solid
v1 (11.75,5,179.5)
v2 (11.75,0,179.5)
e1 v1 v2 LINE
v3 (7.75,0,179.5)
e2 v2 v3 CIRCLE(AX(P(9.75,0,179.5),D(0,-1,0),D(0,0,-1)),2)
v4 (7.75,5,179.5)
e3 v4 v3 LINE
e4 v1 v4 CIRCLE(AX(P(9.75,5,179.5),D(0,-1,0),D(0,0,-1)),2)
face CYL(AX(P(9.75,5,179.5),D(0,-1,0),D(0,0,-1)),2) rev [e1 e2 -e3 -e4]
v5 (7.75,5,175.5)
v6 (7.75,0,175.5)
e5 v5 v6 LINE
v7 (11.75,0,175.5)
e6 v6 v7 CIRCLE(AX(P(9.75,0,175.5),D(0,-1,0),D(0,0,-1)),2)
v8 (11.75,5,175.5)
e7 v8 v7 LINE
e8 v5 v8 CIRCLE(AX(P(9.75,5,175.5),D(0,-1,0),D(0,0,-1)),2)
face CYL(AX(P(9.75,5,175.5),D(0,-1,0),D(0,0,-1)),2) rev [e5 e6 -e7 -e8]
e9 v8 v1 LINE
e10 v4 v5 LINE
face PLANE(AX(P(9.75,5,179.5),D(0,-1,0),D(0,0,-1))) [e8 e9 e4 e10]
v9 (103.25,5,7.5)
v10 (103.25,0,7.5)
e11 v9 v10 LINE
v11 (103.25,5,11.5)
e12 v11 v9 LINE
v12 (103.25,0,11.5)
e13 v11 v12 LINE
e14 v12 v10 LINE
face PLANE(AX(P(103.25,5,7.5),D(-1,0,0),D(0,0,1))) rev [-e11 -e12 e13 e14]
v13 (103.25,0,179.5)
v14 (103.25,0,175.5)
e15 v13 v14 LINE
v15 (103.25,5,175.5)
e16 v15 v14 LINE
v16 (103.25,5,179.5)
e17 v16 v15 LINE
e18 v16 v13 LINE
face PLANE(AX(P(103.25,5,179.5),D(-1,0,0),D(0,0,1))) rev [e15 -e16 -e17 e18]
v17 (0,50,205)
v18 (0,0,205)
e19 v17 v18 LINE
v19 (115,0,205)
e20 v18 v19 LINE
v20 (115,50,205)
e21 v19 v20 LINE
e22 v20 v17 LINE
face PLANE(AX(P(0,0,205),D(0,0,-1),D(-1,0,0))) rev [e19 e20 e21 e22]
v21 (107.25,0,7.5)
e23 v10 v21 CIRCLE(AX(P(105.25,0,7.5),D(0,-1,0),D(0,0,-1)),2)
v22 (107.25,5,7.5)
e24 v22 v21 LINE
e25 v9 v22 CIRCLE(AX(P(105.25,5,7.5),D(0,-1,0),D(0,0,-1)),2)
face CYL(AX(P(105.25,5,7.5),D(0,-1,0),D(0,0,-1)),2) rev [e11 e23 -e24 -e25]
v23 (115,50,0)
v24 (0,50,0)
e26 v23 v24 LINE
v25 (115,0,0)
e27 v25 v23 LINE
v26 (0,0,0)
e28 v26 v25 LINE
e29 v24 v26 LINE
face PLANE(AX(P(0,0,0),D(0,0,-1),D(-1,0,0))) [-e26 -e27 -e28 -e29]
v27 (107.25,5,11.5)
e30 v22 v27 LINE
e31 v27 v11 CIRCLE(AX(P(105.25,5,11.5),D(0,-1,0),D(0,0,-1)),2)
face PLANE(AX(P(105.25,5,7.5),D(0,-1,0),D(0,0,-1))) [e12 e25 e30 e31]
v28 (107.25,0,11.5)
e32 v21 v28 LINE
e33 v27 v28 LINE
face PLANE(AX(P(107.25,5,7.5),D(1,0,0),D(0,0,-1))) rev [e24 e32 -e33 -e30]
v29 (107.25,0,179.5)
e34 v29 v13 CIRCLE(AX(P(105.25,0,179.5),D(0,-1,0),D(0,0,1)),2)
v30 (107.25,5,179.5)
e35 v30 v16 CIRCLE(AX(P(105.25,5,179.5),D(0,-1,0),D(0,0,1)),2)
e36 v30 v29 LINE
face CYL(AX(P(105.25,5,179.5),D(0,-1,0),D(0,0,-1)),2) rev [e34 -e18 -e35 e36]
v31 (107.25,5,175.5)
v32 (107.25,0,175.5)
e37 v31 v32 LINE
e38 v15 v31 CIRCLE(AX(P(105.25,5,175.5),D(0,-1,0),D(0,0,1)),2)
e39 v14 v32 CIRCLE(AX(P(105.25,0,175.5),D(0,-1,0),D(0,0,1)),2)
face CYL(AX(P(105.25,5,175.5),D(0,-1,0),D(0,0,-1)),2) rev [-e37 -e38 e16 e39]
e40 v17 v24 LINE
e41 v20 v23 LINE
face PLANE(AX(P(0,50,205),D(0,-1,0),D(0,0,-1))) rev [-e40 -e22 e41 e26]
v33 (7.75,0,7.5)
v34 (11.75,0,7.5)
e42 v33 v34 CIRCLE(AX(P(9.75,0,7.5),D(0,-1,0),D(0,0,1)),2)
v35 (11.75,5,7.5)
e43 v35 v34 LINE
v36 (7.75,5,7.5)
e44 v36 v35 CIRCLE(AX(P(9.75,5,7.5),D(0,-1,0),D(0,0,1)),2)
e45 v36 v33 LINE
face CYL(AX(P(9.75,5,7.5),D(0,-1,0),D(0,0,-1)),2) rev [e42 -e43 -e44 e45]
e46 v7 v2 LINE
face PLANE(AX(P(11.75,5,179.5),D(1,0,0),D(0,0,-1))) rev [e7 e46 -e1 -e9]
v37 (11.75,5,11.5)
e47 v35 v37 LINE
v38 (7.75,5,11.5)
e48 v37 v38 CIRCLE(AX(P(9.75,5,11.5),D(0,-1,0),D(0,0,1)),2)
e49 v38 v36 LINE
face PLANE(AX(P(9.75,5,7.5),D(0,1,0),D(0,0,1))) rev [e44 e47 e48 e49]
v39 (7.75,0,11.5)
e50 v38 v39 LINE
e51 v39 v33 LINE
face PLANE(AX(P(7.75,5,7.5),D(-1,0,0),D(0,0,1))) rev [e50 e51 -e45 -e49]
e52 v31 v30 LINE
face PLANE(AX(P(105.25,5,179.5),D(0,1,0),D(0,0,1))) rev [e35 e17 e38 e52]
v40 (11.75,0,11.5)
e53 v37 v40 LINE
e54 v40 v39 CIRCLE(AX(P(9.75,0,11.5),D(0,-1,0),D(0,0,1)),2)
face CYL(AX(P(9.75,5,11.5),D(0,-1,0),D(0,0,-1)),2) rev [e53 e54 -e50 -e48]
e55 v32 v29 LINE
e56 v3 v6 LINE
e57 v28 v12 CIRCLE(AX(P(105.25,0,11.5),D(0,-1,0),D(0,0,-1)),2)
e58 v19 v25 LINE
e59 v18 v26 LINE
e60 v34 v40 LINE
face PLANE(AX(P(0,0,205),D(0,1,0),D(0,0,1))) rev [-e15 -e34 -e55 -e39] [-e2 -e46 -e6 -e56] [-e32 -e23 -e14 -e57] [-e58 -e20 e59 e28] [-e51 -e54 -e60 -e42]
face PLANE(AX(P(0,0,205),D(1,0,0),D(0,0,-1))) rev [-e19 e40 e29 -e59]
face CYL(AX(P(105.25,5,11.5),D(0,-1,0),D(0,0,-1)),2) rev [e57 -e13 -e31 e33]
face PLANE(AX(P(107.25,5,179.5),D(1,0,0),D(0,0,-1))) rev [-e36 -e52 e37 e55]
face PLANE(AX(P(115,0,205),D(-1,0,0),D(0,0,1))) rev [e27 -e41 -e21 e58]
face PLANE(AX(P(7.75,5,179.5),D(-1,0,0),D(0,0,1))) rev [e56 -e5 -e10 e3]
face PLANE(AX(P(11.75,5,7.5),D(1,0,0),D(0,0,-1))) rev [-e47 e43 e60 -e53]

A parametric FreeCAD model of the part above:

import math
import FreeCAD as App
import Part
import Sketcher
Q = App.Units.Quantity

doc = App.newDocument("Part")
params = doc.addObject("Spreadsheet::Sheet", "Params")
for row, (alias, value) in enumerate([
    ("sketch1_width", "115 mm"),
    ("sketch1_height", "50 mm"),
    ("pad1_length", "205 mm"),
    ("sketch2_radius", "2 mm"),
    ("sketch2_height", "4 mm"),
    ("pocket1_length", "5 mm"),
], start=1):
    params.set(f"A{row}", alias)
    params.set(f"B{row}", "=" + value)
    params.setAlias(f"B{row}", alias)

body = doc.addObject("PartDesign::Body", "Body")

# Sketch on XY plane
sketch1 = body.newObject("Sketcher::SketchObject", "Sketch")
sketch1.AttachmentSupport = (doc.getObject("XY_Plane"), [""])
sketch1.MapMode = "FlatFace"
sketch1.addGeometry([
    Part.LineSegment(App.Vector(0, 50, 0), App.Vector(0, 0, 0)),
    Part.LineSegment(App.Vector(0, 0, 0), App.Vector(115, 0, 0)),
    Part.LineSegment(App.Vector(115, 0, 0), App.Vector(115, 50, 0)),
    Part.LineSegment(App.Vector(115, 50, 0), App.Vector(0, 50, 0)),
], False)
sketch1.addConstraint([
    Sketcher.Constraint("Coincident", 0, 2, 1, 1),
    Sketcher.Constraint("Coincident", 1, 2, 2, 1),
    Sketcher.Constraint("Coincident", 2, 2, 3, 1),
    Sketcher.Constraint("Coincident", 3, 2, 0, 1),
    Sketcher.Constraint("Vertical", 0),
    Sketcher.Constraint("Horizontal", 1),
    Sketcher.Constraint("Vertical", 2),
    Sketcher.Constraint("Horizontal", 3),
    Sketcher.Constraint("Coincident", 0, 2, -1, 1),
    Sketcher.Constraint("DistanceX", 1, 1, 1, 2, Q("115 mm")),
    Sketcher.Constraint("DistanceY", 0, 2, 0, 1, Q("50 mm")),
])
sketch1.setExpression("Constraints[9]", "Params.sketch1_width")
sketch1.setExpression("Constraints[10]", "Params.sketch1_height")
pad1 = body.newObject("PartDesign::Pad", "Pad")
pad1.Profile = sketch1
pad1.setExpression("Length", "Params.pad1_length")

# Sketch on XZ plane
sketch2 = body.newObject("Sketcher::SketchObject", "Sketch001")
sketch2.AttachmentSupport = (doc.getObject("XZ_Plane"), [""])
sketch2.MapMode = "FlatFace"
sketch2.addGeometry([
    Part.LineSegment(App.Vector(11.8, 175.5, 0), App.Vector(11.8, 179.5, 0)),  # 0
    Part.ArcOfCircle(Part.Circle(App.Vector(9.8, 179.5, 0), App.Vector(0, 0, 1), 2), math.radians(0), math.radians(180)),  # 1
    Part.LineSegment(App.Vector(7.8, 179.5, 0), App.Vector(7.8, 175.5, 0)),  # 2
    Part.ArcOfCircle(Part.Circle(App.Vector(9.8, 175.5, 0), App.Vector(0, 0, 1), 2), math.radians(180), math.radians(360)),  # 3
    Part.LineSegment(App.Vector(103.2, 179.5, 0), App.Vector(103.2, 175.5, 0)),  # 4
    Part.ArcOfCircle(Part.Circle(App.Vector(105.2, 175.5, 0), App.Vector(0, 0, 1), 2), math.radians(180), math.radians(360)),  # 5
    Part.LineSegment(App.Vector(107.2, 175.5, 0), App.Vector(107.2, 179.5, 0)),  # 6
    Part.ArcOfCircle(Part.Circle(App.Vector(105.2, 179.5, 0), App.Vector(0, 0, 1), 2), math.radians(0), math.radians(180)),  # 7
    Part.LineSegment(App.Vector(11.8, 7.5, 0), App.Vector(11.8, 11.5, 0)),  # 8
    Part.ArcOfCircle(Part.Circle(App.Vector(9.8, 11.5, 0), App.Vector(0, 0, 1), 2), math.radians(0), math.radians(180)),  # 9
    Part.LineSegment(App.Vector(7.8, 11.5, 0), App.Vector(7.8, 7.5, 0)),  # 10
    Part.ArcOfCircle(Part.Circle(App.Vector(9.8, 7.5, 0), App.Vector(0, 0, 1), 2), math.radians(180), math.radians(360)),  # 11
    Part.LineSegment(App.Vector(103.2, 11.5, 0), App.Vector(103.2, 7.5, 0)),  # 12
    Part.ArcOfCircle(Part.Circle(App.Vector(105.2, 7.5, 0), App.Vector(0, 0, 1), 2), math.radians(180), math.radians(360)),  # 13
    Part.LineSegment(App.Vector(107.2, 7.5, 0), App.Vector(107.2, 11.5, 0)),  # 14
    Part.ArcOfCircle(Part.Circle(App.Vector(105.2, 11.5, 0), App.Vector(0, 0, 1), 2), math.radians(0), math.radians(180)),  # 15
], False)
sketch2.addConstraint([
    Sketcher.Constraint("Tangent", 0, 2, 1, 1),
    Sketcher.Constraint("Tangent", 1, 2, 2, 1),
    Sketcher.Constraint("Tangent", 2, 2, 3, 1),
    Sketcher.Constraint("Tangent", 3, 2, 0, 1),
    Sketcher.Constraint("Tangent", 4, 2, 5, 1),
    Sketcher.Constraint("Tangent", 5, 2, 6, 1),
    Sketcher.Constraint("Tangent", 6, 2, 7, 1),
    Sketcher.Constraint("Tangent", 7, 2, 4, 1),
    Sketcher.Constraint("Tangent", 8, 2, 9, 1),
    Sketcher.Constraint("Tangent", 9, 2, 10, 1),
    Sketcher.Constraint("Tangent", 10, 2, 11, 1),
    Sketcher.Constraint("Tangent", 11, 2, 8, 1),
    Sketcher.Constraint("Tangent", 12, 2, 13, 1),
    Sketcher.Constraint("Tangent", 13, 2, 14, 1),
    Sketcher.Constraint("Tangent", 14, 2, 15, 1),
    Sketcher.Constraint("Tangent", 15, 2, 12, 1),
    Sketcher.Constraint("Vertical", 0),
    Sketcher.Constraint("Vertical", 2),
    Sketcher.Constraint("Vertical", 4),
    Sketcher.Constraint("Vertical", 6),
    Sketcher.Constraint("Vertical", 8),
    Sketcher.Constraint("Vertical", 10),
    Sketcher.Constraint("Vertical", 12),
    Sketcher.Constraint("Vertical", 14),
    Sketcher.Constraint("Equal", 3, 5),
    Sketcher.Constraint("Equal", 7, 9),
    Sketcher.Constraint("Equal", 11, 13),
    Sketcher.Constraint("Horizontal", 3, 3, 5, 3),
    Sketcher.Constraint("Horizontal", 1, 3, 7, 3),
    Sketcher.Constraint("Horizontal", 11, 3, 13, 3),
    Sketcher.Constraint("Horizontal", 9, 3, 15, 3),
    Sketcher.Constraint("Vertical", 3, 3, 9, 3),
    Sketcher.Constraint("Vertical", 7, 3, 13, 3),
    Sketcher.Constraint("Equal", 6, 8),
    Sketcher.Constraint("Radius", 1, Q("2 mm")),
    Sketcher.Constraint("DistanceY", 0, 1, 0, 2, Q("4 mm")),
    Sketcher.Constraint("DistanceY", 9, 3, 3, 3, Q("164 mm")),
    Sketcher.Constraint("DistanceY", -1, 1, 1, 3, Q("179.5 mm")),
    Sketcher.Constraint("DistanceX", 3, 3, 5, 3, Q("95.5 mm")),
    Sketcher.Constraint("DistanceX", -1, 1, 1, 3, Q("9.75 mm")),
])
sketch2.setExpression("Constraints[34]", "Params.sketch2_radius")
sketch2.setExpression("Constraints[35]", "Params.sketch2_height")
pocket1 = body.newObject("PartDesign::Pocket", "Pocket")
pocket1.Profile = sketch2
pocket1.setExpression("Length", "Params.pocket1_length")

doc.recompute()
